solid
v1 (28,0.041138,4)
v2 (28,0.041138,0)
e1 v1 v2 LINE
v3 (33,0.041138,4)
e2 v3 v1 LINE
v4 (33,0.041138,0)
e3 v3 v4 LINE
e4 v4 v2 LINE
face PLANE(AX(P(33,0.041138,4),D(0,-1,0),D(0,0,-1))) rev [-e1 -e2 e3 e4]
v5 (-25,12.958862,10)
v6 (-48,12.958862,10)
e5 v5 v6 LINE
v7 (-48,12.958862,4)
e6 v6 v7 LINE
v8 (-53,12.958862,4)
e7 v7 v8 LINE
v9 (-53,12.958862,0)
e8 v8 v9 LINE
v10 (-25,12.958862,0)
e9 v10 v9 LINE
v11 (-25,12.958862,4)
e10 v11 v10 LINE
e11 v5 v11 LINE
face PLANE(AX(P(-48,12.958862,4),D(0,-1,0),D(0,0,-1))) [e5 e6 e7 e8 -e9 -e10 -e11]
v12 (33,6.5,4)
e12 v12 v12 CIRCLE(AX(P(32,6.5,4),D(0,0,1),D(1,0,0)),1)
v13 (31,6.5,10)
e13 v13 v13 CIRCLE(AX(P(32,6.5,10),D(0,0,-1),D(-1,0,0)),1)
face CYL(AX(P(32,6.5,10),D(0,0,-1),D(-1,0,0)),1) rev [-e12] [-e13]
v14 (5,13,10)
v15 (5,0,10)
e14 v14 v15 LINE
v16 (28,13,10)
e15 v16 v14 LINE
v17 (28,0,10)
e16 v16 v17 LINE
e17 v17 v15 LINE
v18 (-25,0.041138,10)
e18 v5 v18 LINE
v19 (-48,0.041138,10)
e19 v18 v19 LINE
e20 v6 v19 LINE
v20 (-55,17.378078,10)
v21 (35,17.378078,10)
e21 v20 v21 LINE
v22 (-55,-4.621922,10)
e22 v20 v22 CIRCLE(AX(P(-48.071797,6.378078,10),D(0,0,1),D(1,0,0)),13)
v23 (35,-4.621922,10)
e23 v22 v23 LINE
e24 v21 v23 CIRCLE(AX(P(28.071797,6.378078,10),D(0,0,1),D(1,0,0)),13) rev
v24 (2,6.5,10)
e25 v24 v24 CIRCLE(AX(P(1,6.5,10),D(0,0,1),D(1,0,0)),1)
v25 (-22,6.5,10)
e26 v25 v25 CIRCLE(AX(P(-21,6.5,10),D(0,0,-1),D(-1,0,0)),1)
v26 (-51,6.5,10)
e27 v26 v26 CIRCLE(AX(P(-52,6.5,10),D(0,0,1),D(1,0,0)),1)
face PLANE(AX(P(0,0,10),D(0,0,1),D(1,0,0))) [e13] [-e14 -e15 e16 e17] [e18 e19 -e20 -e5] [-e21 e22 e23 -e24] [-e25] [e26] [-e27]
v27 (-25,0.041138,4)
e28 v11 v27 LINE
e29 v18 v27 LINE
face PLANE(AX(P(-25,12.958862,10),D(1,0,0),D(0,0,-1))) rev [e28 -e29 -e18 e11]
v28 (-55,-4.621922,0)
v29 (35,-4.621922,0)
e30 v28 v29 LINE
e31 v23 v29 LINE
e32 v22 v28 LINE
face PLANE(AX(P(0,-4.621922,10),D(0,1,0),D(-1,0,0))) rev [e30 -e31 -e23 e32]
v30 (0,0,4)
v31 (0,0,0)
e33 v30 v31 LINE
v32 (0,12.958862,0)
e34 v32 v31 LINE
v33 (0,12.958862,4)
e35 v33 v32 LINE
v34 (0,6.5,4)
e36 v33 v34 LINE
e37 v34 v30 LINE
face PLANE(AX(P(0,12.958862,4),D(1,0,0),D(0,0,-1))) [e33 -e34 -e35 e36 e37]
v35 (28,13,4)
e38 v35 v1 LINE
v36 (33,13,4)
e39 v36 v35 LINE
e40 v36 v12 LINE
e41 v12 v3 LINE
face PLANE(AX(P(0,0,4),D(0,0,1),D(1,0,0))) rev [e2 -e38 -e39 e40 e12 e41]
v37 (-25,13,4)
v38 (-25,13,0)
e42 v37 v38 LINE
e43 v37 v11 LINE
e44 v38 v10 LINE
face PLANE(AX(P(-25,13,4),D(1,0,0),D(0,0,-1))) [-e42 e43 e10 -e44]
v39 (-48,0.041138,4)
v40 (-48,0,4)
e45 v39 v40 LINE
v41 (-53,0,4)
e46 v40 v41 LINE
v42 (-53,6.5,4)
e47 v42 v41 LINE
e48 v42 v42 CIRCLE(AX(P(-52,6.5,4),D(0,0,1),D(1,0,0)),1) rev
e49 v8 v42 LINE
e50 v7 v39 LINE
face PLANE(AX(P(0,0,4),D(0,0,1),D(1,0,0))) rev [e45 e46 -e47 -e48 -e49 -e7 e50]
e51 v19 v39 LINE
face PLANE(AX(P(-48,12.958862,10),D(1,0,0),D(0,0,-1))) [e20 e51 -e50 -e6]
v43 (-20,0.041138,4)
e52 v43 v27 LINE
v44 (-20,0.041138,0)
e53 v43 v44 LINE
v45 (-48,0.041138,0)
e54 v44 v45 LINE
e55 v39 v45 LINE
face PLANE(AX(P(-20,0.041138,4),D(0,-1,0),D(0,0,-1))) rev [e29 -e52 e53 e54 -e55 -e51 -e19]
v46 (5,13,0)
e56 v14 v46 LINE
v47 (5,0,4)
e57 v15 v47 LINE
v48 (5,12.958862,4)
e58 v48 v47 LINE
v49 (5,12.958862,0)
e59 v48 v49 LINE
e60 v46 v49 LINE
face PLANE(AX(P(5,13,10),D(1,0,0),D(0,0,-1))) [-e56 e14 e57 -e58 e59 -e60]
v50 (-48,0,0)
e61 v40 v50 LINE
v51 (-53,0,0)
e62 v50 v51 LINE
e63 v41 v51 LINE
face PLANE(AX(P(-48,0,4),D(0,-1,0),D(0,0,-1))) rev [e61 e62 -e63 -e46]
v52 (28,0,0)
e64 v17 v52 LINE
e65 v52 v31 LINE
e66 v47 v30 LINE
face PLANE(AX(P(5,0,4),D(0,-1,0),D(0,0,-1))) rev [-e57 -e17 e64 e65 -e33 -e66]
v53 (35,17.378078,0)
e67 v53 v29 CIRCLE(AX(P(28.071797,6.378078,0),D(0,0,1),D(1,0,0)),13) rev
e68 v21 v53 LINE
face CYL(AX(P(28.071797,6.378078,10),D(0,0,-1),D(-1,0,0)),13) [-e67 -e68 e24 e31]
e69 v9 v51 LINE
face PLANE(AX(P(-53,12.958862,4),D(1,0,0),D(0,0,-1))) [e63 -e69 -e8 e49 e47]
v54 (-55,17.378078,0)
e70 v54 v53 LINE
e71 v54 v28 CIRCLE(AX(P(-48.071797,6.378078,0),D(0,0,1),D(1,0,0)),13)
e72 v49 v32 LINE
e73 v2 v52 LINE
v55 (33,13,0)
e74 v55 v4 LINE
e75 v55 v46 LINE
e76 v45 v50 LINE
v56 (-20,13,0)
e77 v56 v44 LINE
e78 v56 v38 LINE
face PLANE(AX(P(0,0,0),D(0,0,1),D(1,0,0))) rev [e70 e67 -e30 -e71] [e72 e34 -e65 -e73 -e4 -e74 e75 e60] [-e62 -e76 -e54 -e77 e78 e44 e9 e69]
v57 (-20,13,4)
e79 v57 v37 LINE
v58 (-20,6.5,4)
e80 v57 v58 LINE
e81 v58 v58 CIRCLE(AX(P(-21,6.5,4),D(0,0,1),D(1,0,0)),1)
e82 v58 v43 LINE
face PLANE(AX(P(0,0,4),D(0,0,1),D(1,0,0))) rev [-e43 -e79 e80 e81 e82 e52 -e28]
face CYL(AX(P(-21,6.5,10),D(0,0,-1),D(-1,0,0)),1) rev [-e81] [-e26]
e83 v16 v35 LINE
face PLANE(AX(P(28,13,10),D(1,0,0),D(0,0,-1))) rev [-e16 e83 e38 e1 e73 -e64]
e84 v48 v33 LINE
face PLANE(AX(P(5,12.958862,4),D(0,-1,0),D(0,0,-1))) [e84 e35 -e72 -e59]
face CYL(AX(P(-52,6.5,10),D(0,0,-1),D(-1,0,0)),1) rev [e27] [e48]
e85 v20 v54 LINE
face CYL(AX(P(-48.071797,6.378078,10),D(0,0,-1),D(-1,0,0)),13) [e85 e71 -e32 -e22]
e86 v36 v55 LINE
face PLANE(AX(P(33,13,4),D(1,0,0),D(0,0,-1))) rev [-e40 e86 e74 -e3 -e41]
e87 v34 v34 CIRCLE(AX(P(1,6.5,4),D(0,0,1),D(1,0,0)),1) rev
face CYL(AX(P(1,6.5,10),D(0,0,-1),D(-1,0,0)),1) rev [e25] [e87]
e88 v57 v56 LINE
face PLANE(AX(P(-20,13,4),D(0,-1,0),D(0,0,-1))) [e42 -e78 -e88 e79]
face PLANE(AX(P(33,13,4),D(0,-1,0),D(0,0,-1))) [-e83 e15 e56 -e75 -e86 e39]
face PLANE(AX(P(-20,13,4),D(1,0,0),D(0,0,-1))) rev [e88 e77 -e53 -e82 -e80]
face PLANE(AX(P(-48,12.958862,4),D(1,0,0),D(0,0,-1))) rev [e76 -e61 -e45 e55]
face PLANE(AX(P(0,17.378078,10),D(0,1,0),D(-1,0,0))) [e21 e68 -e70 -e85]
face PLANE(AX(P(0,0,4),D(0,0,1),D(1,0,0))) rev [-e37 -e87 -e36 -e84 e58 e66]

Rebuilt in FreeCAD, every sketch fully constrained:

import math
import FreeCAD as App
import Part
import Sketcher
from FreeCAD import Vector
Q = App.Units.Quantity

doc = App.newDocument("Part")
body = doc.addObject("PartDesign::Body", "Body")

sketch1 = body.newObject("Sketcher::SketchObject", "Sketch")
sketch1.AttachmentSupport = (doc.getObject("XY_Plane"), [""])
sketch1.MapMode = "FlatFace"
sketch1.addGeometry([
    Part.LineSegment(Vector(35, 17, 0), Vector(-55, 17, 0)),
    Part.ArcOfCircle(Part.Circle(Vector(-48, 6, 0), Vector(0, 0, 1), 13), math.radians(122), math.radians(238)),
    Part.LineSegment(Vector(-55, -5, 0), Vector(35, -5, 0)),
    Part.ArcOfCircle(Part.Circle(Vector(28, 6, 0), Vector(0, 0, 1), 13), math.radians(-58), math.radians(58)),
], False)
sketch1.addConstraint([
    Sketcher.Constraint("Coincident", 0, 2, 1, 1),
    Sketcher.Constraint("Coincident", 1, 2, 2, 1),
    Sketcher.Constraint("Coincident", 2, 2, 3, 1),
    Sketcher.Constraint("Coincident", 3, 2, 0, 1),
    Sketcher.Constraint("Horizontal", 0),
    Sketcher.Constraint("Horizontal", 2),
    Sketcher.Constraint("Equal", 1, 3),
    Sketcher.Constraint("Horizontal", 1, 3, 3, 3),
    Sketcher.Constraint("Vertical", 0, 2, 1, 2),
    Sketcher.Constraint("Radius", 1, Q("13 mm")),
    Sketcher.Constraint("DistanceX", 0, 2, 0, 1, Q("90 mm")),
    Sketcher.Constraint("DistanceX", 0, 2, -1, 1, Q("55 mm")),
    Sketcher.Constraint("DistanceY", 1, 3, 0, 2, Q("11 mm")),
    Sketcher.Constraint("DistanceY", -1, 1, 1, 3, Q("6.378078 mm")),
])
pad1 = body.newObject("PartDesign::Pad", "Pad")
pad1.Profile = sketch1
pad1.Length = 10

sketch2 = body.newObject("Sketcher::SketchObject", "Sketch001")
sketch2.AttachmentSupport = (doc.getObject("XY_Plane"), [""])
sketch2.MapMode = "FlatFace"
sketch2.addGeometry([
    Part.LineSegment(Vector(33, 13, 0), Vector(33, 0, 0)),
    Part.LineSegment(Vector(33, 0, 0), Vector(28, 0, 0)),
    Part.LineSegment(Vector(28, 0, 0), Vector(28, 13, 0)),
    Part.LineSegment(Vector(28, 13, 0), Vector(33, 13, 0)),
    Part.LineSegment(Vector(5, 13, 0), Vector(5, 0, 0)),
    Part.LineSegment(Vector(5, 0, 0), Vector(0, 0, 0)),
    Part.LineSegment(Vector(0, 0, 0), Vector(0, 13, 0)),
    Part.LineSegment(Vector(0, 13, 0), Vector(5, 13, 0)),
    Part.LineSegment(Vector(-20, 13, 0), Vector(-20, 0, 0)),
    Part.LineSegment(Vector(-20, 0, 0), Vector(-25, 0, 0)),
    Part.LineSegment(Vector(-25, 0, 0), Vector(-25, 13, 0)),
    Part.LineSegment(Vector(-25, 13, 0), Vector(-20, 13, 0)),
    Part.LineSegment(Vector(-48, 13, 0), Vector(-48, 0, 0)),
    Part.LineSegment(Vector(-48, 0, 0), Vector(-53, 0, 0)),
    Part.LineSegment(Vector(-53, 0, 0), Vector(-53, 13, 0)),
    Part.LineSegment(Vector(-53, 13, 0), Vector(-48, 13, 0)),
], False)
sketch2.addConstraint([
    Sketcher.Constraint("Coincident", 0, 2, 1, 1),
    Sketcher.Constraint("Coincident", 1, 2, 2, 1),
    Sketcher.Constraint("Coincident", 2, 2, 3, 1),
    Sketcher.Constraint("Coincident", 3, 2, 0, 1),
    Sketcher.Constraint("Coincident", 4, 2, 5, 1),
    Sketcher.Constraint("Coincident", 5, 2, 6, 1),
    Sketcher.Constraint("Coincident", 6, 2, 7, 1),
    Sketcher.Constraint("Coincident", 7, 2, 4, 1),
    Sketcher.Constraint("Coincident", 8, 2, 9, 1),
    Sketcher.Constraint("Coincident", 9, 2, 10, 1),
    Sketcher.Constraint("Coincident", 10, 2, 11, 1),
    Sketcher.Constraint("Coincident", 11, 2, 8, 1),
    Sketcher.Constraint("Coincident", 12, 2, 13, 1),
    Sketcher.Constraint("Coincident", 13, 2, 14, 1),
    Sketcher.Constraint("Coincident", 14, 2, 15, 1),
    Sketcher.Constraint("Coincident", 15, 2, 12, 1),
    Sketcher.Constraint("Vertical", 0),
    Sketcher.Constraint("Horizontal", 1),
    Sketcher.Constraint("Vertical", 2),
    Sketcher.Constraint("Horizontal", 3),
    Sketcher.Constraint("Vertical", 4),
    Sketcher.Constraint("Horizontal", 5),
    Sketcher.Constraint("Vertical", 6),
    Sketcher.Constraint("Horizontal", 7),
    Sketcher.Constraint("Vertical", 8),
    Sketcher.Constraint("Horizontal", 9),
    Sketcher.Constraint("Vertical", 10),
    Sketcher.Constraint("Horizontal", 11),
    Sketcher.Constraint("Vertical", 12),
    Sketcher.Constraint("Horizontal", 13),
    Sketcher.Constraint("Vertical", 14),
    Sketcher.Constraint("Horizontal", 15),
    Sketcher.Constraint("Coincident", 5, 2, -1, 1),
    Sketcher.Constraint("PointOnObject", 12, 2, -1),
    Sketcher.Constraint("Horizontal", 1, 2, 8, 2),
    Sketcher.Constraint("Horizontal", 3, 2, 10, 2),
    Sketcher.Constraint("Horizontal", 7, 2, 14, 2),
    Sketcher.Constraint("Equal", 3, 5),
    Sketcher.Constraint("Equal", 7, 9),
    Sketcher.Constraint("Equal", 11, 13),
    Sketcher.Constraint("Equal", 2, 4),
    Sketcher.Constraint("DistanceX", 1, 2, 1, 1, Q("5 mm")),
    Sketcher.Constraint("DistanceX", -1, 1, 0, 2, Q("33 mm")),
    Sketcher.Constraint("DistanceY", -1, 1, 2, 2, Q("13 mm")),
    Sketcher.Constraint("DistanceX", 8, 2, -1, 1, Q("20 mm")),
    Sketcher.Constraint("DistanceX", 12, 2, -1, 1, Q("48 mm")),
    Sketcher.Constraint("DistanceY", 0, 2, 0, 1, Q("12.958862 mm")),
])
pocket1 = body.newObject("PartDesign::Pocket", "Pocket")
pocket1.Profile = sketch2
pocket1.Length = 4
pocket1.Reversed = True

sketch3 = body.newObject("Sketcher::SketchObject", "Sketch002")
sketch3.AttachmentSupport = (doc.getObject("XY_Plane"), [""])
sketch3.MapMode = "FlatFace"
sketch3.addGeometry([
    Part.LineSegment(Vector(28, 13, 0), Vector(28, 0, 0)),
    Part.LineSegment(Vector(28, 0, 0), Vector(5, 0, 0)),
    Part.LineSegment(Vector(5, 0, 0), Vector(5, 13, 0)),
    Part.LineSegment(Vector(5, 13, 0), Vector(28, 13, 0)),
    Part.LineSegment(Vector(-25, 13, 0), Vector(-25, 0, 0)),
    Part.LineSegment(Vector(-25, 0, 0), Vector(-48, 0, 0)),
    Part.LineSegment(Vector(-48, 0, 0), Vector(-48, 13, 0)),
    Part.LineSegment(Vector(-48, 13, 0), Vector(-25, 13, 0)),
], False)
sketch3.addConstraint([
    Sketcher.Constraint("Coincident", 0, 2, 1, 1),
    Sketcher.Constraint("Coincident", 1, 2, 2, 1),
    Sketcher.Constraint("Coincident", 2, 2, 3, 1),
    Sketcher.Constraint("Coincident", 3, 2, 0, 1),
    Sketcher.Constraint("Coincident", 4, 2, 5, 1),
    Sketcher.Constraint("Coincident", 5, 2, 6, 1),
    Sketcher.Constraint("Coincident", 6, 2, 7, 1),
    Sketcher.Constraint("Coincident", 7, 2, 4, 1),
    Sketcher.Constraint("Vertical", 0),
    Sketcher.Constraint("Horizontal", 1),
    Sketcher.Constraint("Vertical", 2),
    Sketcher.Constraint("Horizontal", 3),
    Sketcher.Constraint("Vertical", 4),
    Sketcher.Constraint("Horizontal", 5),
    Sketcher.Constraint("Vertical", 6),
    Sketcher.Constraint("Horizontal", 7),
    Sketcher.Constraint("PointOnObject", 0, 2, -1),
    Sketcher.Constraint("Equal", 3, 5),
    Sketcher.Constraint("DistanceX", 1, 2, 1, 1, Q("23 mm")),
    Sketcher.Constraint("DistanceY", 0, 2, 0, 1, Q("13 mm")),
    Sketcher.Constraint("DistanceX", -1, 1, 0, 2, Q("28 mm")),
    Sketcher.Constraint("DistanceX", 4, 2, -1, 1, Q("25 mm")),
    Sketcher.Constraint("DistanceY", 4, 2, 4, 1, Q("12.917725 mm")),
    Sketcher.Constraint("DistanceY", -1, 1, 4, 2, Q("0.041138 mm")),
])
pocket2 = body.newObject("PartDesign::Pocket", "Pocket001")
pocket2.Profile = sketch3
pocket2.Type = "ThroughAll"
pocket2.Reversed = True

sketch4 = body.newObject("Sketcher::SketchObject", "Sketch003")
sketch4.AttachmentSupport = (doc.getObject("XY_Plane"), [""])
sketch4.MapMode = "FlatFace"
sketch4.addGeometry([
    Part.Circle(Vector(32, 6.5, 0), Vector(0, 0, 1), 1),
    Part.Circle(Vector(1, 6.5, 0), Vector(0, 0, 1), 1),
    Part.Circle(Vector(-21, 6.5, 0), Vector(0, 0, 1), 1),
    Part.Circle(Vector(-52, 6.5, 0), Vector(0, 0, 1), 1),
], False)
sketch4.addConstraint([
    Sketcher.Constraint("Equal", 0, 1),
    Sketcher.Constraint("Equal", 1, 2),
    Sketcher.Constraint("Equal", 2, 3),
    Sketcher.Constraint("Horizontal", 0, 3, 1, 3),
    Sketcher.Constraint("Horizontal", 1, 3, 2, 3),
    Sketcher.Constraint("Horizontal", 2, 3, 3, 3),
    Sketcher.Constraint("Diameter", 0, Q("2 mm")),
    Sketcher.Constraint("DistanceX", -1, 1, 0, 3, Q("32 mm")),
    Sketcher.Constraint("DistanceX", -1, 1, 1, 3, Q("1 mm")),
    Sketcher.Constraint("DistanceX", 2, 3, -1, 1, Q("21 mm")),
    Sketcher.Constraint("DistanceX", 3, 3, -1, 1, Q("52 mm")),
    Sketcher.Constraint("DistanceY", -1, 1, 0, 3, Q("6.5 mm")),
])
pocket3 = body.newObject("PartDesign::Pocket", "Pocket002")
pocket3.Profile = sketch4
pocket3.Type = "ThroughAll"
pocket3.Reversed = True

doc.recompute()
